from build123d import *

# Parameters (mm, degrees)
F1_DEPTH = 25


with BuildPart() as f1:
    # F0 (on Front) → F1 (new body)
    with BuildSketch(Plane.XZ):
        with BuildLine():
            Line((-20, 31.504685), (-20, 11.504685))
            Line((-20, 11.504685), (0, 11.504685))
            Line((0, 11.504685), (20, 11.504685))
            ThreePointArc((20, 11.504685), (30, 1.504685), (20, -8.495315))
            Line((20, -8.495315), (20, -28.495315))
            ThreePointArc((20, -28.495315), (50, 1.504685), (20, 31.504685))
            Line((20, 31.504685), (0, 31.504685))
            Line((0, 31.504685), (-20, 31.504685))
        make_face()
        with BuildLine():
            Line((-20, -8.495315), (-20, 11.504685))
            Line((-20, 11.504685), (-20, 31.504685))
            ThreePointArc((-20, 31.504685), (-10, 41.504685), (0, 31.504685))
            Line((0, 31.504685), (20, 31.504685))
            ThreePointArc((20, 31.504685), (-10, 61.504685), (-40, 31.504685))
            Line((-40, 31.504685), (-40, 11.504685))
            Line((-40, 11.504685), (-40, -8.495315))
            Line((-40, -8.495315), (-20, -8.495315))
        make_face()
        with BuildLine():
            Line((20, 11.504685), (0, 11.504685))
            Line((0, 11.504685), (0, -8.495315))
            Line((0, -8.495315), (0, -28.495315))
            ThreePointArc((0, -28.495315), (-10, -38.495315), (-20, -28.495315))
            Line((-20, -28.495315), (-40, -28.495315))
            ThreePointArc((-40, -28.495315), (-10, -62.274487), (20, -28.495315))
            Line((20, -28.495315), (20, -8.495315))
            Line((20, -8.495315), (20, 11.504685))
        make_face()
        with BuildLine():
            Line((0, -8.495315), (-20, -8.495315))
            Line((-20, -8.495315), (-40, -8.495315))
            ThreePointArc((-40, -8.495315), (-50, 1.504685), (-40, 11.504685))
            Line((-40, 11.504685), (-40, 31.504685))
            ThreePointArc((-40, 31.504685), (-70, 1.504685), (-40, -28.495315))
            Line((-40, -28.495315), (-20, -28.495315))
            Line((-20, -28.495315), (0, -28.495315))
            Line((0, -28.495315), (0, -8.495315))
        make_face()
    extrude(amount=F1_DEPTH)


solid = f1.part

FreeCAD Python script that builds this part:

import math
import FreeCAD as App
import Part
import Sketcher

V = App.Vector

doc = App.newDocument("Part")
params = doc.addObject("Spreadsheet::Sheet", "Params")
for row, (alias, value) in enumerate([
    ("sketch1_radius", "30 mm"),
    ("pad1_length", "25 mm"),
], start=1):
    params.set(f"A{row}", alias)
    params.set(f"B{row}", "=" + value)
    params.setAlias(f"B{row}", alias)

body = doc.addObject("PartDesign::Body", "Body")

sketch1 = body.newObject("Sketcher::SketchObject", "Sketch")
sketch1.AttachmentSupport = (doc.getObject("XZ_Plane"), [""])
sketch1.MapMode = "FlatFace"
sketch1.addGeometry(Part.ArcOfCircle(Part.Circle(V(-10, -32, 0), V(0, 0, 1), 30), math.radians(173), math.radians(367)), False)
sketch1.addGeometry(Part.ArcOfCircle(Part.Circle(V(20, 2, 0), V(0, 0, 1), 30), math.radians(-90), math.radians(90)), False)
sketch1.addGeometry(Part.ArcOfCircle(Part.Circle(V(-10, 32, 0), V(0, 0, 1), 30), math.radians(0), math.radians(180)), False)
sketch1.addGeometry(Part.ArcOfCircle(Part.Circle(V(-40, 2, 0), V(0, 0, 1), 30), math.radians(90), math.radians(270)), False)
sketch1.addGeometry(Part.LineSegment(V(-20, 12, 0), V(0, 12, 0)), False)
sketch1.addGeometry(Part.LineSegment(V(0, 12, 0), V(0, -8, 0)), False)
sketch1.addGeometry(Part.LineSegment(V(0, -8, 0), V(-20, -8, 0)), False)
sketch1.addGeometry(Part.LineSegment(V(-20, -8, 0), V(-20, 12, 0)), False)
sketch1.addGeometry(Part.ArcOfCircle(Part.Circle(V(-10, -28, 0), V(0, 0, 1), 10), math.radians(180), math.radians(360)), False)
sketch1.addGeometry(Part.LineSegment(V(-20, -28, 0), V(0, -28, 0)), False)
sketch1.addGeometry(Part.LineSegment(V(-40, 12, 0), V(-40, -8, 0)), False)
sketch1.addGeometry(Part.ArcOfCircle(Part.Circle(V(-40, 2, 0), V(0, 0, 1), 10), math.radians(90), math.radians(270)), False)
sketch1.addGeometry(Part.ArcOfCircle(Part.Circle(V(20, 2, 0), V(0, 0, 1), 10), math.radians(-90), math.radians(90)), False)
sketch1.addGeometry(Part.LineSegment(V(20, -8, 0), V(20, 12, 0)), False)
sketch1.addGeometry(Part.LineSegment(V(0, 32, 0), V(-20, 32, 0)), False)
sketch1.addGeometry(Part.ArcOfCircle(Part.Circle(V(-10, 32, 0), V(0, 0, 1), 10), math.radians(0), math.radians(180)), False)
sketch1.addConstraint(Sketcher.Constraint("Coincident", 0, 2, 1, 1))
sketch1.addConstraint(Sketcher.Constraint("Coincident", 1, 2, 2, 1))
sketch1.addConstraint(Sketcher.Constraint("Coincident", 2, 2, 3, 1))
sketch1.addConstraint(Sketcher.Constraint("Coincident", 3, 2, 0, 1))
sketch1.addConstraint(Sketcher.Constraint("Coincident", 4, 2, 5, 1))
sketch1.addConstraint(Sketcher.Constraint("Coincident", 5, 2, 6, 1))
sketch1.addConstraint(Sketcher.Constraint("Coincident", 6, 2, 7, 1))
sketch1.addConstraint(Sketcher.Constraint("Coincident", 7, 2, 4, 1))
sketch1.addConstraint(Sketcher.Constraint("Coincident", 8, 1, 9, 1))
sketch1.addConstraint(Sketcher.Constraint("Coincident", 9, 2, 8, 2))
sketch1.addConstraint(Sketcher.Constraint("Coincident", 10, 1, 11, 1))
sketch1.addConstraint(Sketcher.Constraint("Coincident", 11, 2, 10, 2))
sketch1.addConstraint(Sketcher.Constraint("Coincident", 12, 1, 13, 1))
sketch1.addConstraint(Sketcher.Constraint("Coincident", 13, 2, 12, 2))
sketch1.addConstraint(Sketcher.Constraint("Coincident", 14, 1, 15, 1))
sketch1.addConstraint(Sketcher.Constraint("Coincident", 15, 2, 14, 2))
sketch1.addConstraint(Sketcher.Constraint("Horizontal", 4))
sketch1.addConstraint(Sketcher.Constraint("Vertical", 5))
sketch1.addConstraint(Sketcher.Constraint("Horizontal", 6))
sketch1.addConstraint(Sketcher.Constraint("Vertical", 7))
sketch1.addConstraint(Sketcher.Constraint("Horizontal", 9))
sketch1.addConstraint(Sketcher.Constraint("Vertical", 10))
sketch1.addConstraint(Sketcher.Constraint("Vertical", 13))
sketch1.addConstraint(Sketcher.Constraint("Horizontal", 14))
sketch1.addConstraint(Sketcher.Constraint("Coincident", 11, 3, 3, 3))
sketch1.addConstraint(Sketcher.Constraint("Coincident", 12, 3, 1, 3))
sketch1.addConstraint(Sketcher.Constraint("Coincident", 15, 3, 2, 3))
sketch1.addConstraint(Sketcher.Constraint("Equal", 1, 2))
sketch1.addConstraint(Sketcher.Constraint("Equal", 2, 3))
sketch1.addConstraint(Sketcher.Constraint("Equal", 8, 11))
sketch1.addConstraint(Sketcher.Constraint("Equal", 11, 12))
sketch1.addConstraint(Sketcher.Constraint("Equal", 12, 15))
sketch1.addConstraint(Sketcher.Constraint("Symmetric", 0, 2, 8, 1, -2))
sketch1.addConstraint(Sketcher.Constraint("Symmetric", 6, 2, 12, 1, -2))
sketch1.addConstraint(Sketcher.Constraint("Symmetric", 1, 2, 15, 2, -2))
sketch1.addConstraint(Sketcher.Constraint("PointOnObject", 4, 2, -2))
sketch1.addConstraint(Sketcher.Constraint("PointOnObject", 9, 2, -2))
sketch1.addConstraint(Sketcher.Constraint("PointOnObject", 14, 1, -2))
sketch1.addConstraint(Sketcher.Constraint("Horizontal", 1, 3, 3, 3))
sketch1.addConstraint(Sketcher.Constraint("Horizontal", 8, 3, 0, 2))
sketch1.addConstraint(Sketcher.Constraint("Horizontal", 15, 3, 1, 2))
sketch1.addConstraint(Sketcher.Constraint("Horizontal", 7, 2, 10, 1))
sketch1.addConstraint(Sketcher.Constraint("Vertical", 0, 3, 2, 3))
sketch1.addConstraint(Sketcher.Constraint("Vertical", 12, 3, 0, 2))
sketch1.addConstraint(Sketcher.Constraint("Vertical", 11, 3, 2, 2))
sketch1.addConstraint(Sketcher.Constraint("Vertical", 7, 2, 8, 1))
sketch1.addConstraint(Sketcher.Constraint("Vertical", 3, 2, 10, 1))
sketch1.addConstraint(Sketcher.Constraint("Radius", 1, 30.0))
sketch1.addConstraint(Sketcher.Constraint("Radius", 0, 30.211405))
sketch1.addConstraint(Sketcher.Constraint("DistanceY", 0, 3, -1, 1, 32.063082))
sketch1.setExpression("Constraints[47]", "Params.sketch1_radius")
pad1 = body.newObject("PartDesign::Pad", "Pad")
pad1.Profile = sketch1
pad1.setExpression("Length", "Params.pad1_length")

doc.recompute()
